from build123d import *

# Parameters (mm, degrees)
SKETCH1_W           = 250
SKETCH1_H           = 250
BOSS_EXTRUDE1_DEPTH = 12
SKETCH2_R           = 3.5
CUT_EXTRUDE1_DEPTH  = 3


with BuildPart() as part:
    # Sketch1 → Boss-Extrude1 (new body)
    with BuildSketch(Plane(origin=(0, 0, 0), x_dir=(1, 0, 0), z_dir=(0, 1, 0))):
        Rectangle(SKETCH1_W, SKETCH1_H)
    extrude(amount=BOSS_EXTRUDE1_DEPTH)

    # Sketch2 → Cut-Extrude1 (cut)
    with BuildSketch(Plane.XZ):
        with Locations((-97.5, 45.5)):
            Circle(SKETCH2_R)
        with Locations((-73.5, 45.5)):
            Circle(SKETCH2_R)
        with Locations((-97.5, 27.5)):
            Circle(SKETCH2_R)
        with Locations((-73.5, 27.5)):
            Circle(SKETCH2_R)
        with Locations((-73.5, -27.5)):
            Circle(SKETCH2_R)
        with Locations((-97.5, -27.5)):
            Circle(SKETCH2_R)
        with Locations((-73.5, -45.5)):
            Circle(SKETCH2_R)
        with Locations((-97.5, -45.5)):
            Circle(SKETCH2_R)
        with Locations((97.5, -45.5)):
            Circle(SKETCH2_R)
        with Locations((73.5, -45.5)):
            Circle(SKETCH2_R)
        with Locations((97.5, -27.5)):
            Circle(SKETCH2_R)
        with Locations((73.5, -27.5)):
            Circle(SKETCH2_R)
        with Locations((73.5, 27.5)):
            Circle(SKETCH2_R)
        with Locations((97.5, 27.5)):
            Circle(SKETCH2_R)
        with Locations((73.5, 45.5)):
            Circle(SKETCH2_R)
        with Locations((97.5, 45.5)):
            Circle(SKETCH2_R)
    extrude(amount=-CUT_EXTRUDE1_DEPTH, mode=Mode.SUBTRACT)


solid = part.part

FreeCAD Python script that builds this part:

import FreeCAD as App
import Part
import Sketcher

V = App.Vector
Q = App.Units.Quantity

doc = App.newDocument("Part")
body = doc.addObject("PartDesign::Body", "Body")

# Sketch on XZ plane
sketch1 = body.newObject("Sketcher::SketchObject", "Sketch")
sketch1.AttachmentSupport = (doc.getObject("XZ_Plane"), [""])
sketch1.MapMode = "FlatFace"
sketch1.addGeometry(Part.LineSegment(V(-125, -125, 0), V(-125, 125, 0)), False)
sketch1.addGeometry(Part.LineSegment(V(-125, 125, 0), V(125, 125, 0)), False)
sketch1.addGeometry(Part.LineSegment(V(125, 125, 0), V(125, -125, 0)), False)
sketch1.addGeometry(Part.LineSegment(V(125, -125, 0), V(-125, -125, 0)), False)
sketch1.addConstraint(Sketcher.Constraint("Coincident", 0, 2, 1, 1))
sketch1.addConstraint(Sketcher.Constraint("Coincident", 1, 2, 2, 1))
sketch1.addConstraint(Sketcher.Constraint("Coincident", 2, 2, 3, 1))
sketch1.addConstraint(Sketcher.Constraint("Coincident", 3, 2, 0, 1))
sketch1.addConstraint(Sketcher.Constraint("Vertical", 0))
sketch1.addConstraint(Sketcher.Constraint("Horizontal", 1))
sketch1.addConstraint(Sketcher.Constraint("Vertical", 2))
sketch1.addConstraint(Sketcher.Constraint("Horizontal", 3))
sketch1.addConstraint(Sketcher.Constraint("Symmetric", 0, 2, 2, 2, -1, 1))
sketch1.addConstraint(Sketcher.Constraint("Equal", 3, 0))
sketch1.addConstraint(Sketcher.Constraint("DistanceX", 1, 1, 1, 2, Q("250 mm")))
pad1 = body.newObject("PartDesign::Pad", "Pad")
pad1.Profile = sketch1
pad1.Length = 12
pad1.Reversed = True

# Sketch on XZ plane
sketch2 = body.newObject("Sketcher::SketchObject", "Sketch001")
sketch2.AttachmentSupport = (doc.getObject("XZ_Plane"), [""])
sketch2.MapMode = "FlatFace"
sketch2.addGeometry(Part.Circle(V(-97.5, 45.5, 0), V(0, 0, 1), 3.5), False)
sketch2.addGeometry(Part.Circle(V(-73.5, 45.5, 0), V(0, 0, 1), 3.5), False)
sketch2.addGeometry(Part.Circle(V(-97.5, 27.5, 0), V(0, 0, 1), 3.5), False)
sketch2.addGeometry(Part.Circle(V(-73.5, 27.5, 0), V(0, 0, 1), 3.5), False)
sketch2.addGeometry(Part.Circle(V(-73.5, -27.5, 0), V(0, 0, 1), 3.5), False)
sketch2.addGeometry(Part.Circle(V(-97.5, -27.5, 0), V(0, 0, 1), 3.5), False)
sketch2.addGeometry(Part.Circle(V(-73.5, -45.5, 0), V(0, 0, 1), 3.5), False)
sketch2.addGeometry(Part.Circle(V(-97.5, -45.5, 0), V(0, 0, 1), 3.5), False)
sketch2.addGeometry(Part.Circle(V(97.5, -45.5, 0), V(0, 0, 1), 3.5), False)
sketch2.addGeometry(Part.Circle(V(73.5, -45.5, 0), V(0, 0, 1), 3.5), False)
sketch2.addGeometry(Part.Circle(V(97.5, -27.5, 0), V(0, 0, 1), 3.5), False)
sketch2.addGeometry(Part.Circle(V(73.5, -27.5, 0), V(0, 0, 1), 3.5), False)
sketch2.addGeometry(Part.Circle(V(73.5, 27.5, 0), V(0, 0, 1), 3.5), False)
sketch2.addGeometry(Part.Circle(V(97.5, 27.5, 0), V(0, 0, 1), 3.5), False)
sketch2.addGeometry(Part.Circle(V(73.5, 45.5, 0), V(0, 0, 1), 3.5), False)
sketch2.addGeometry(Part.Circle(V(97.5, 45.5, 0), V(0, 0, 1), 3.5), False)
sketch2.addConstraint(Sketcher.Constraint("Equal", 0, 1))
sketch2.addConstraint(Sketcher.Constraint("Equal", 1, 2))
sketch2.addConstraint(Sketcher.Constraint("Equal", 2, 3))
sketch2.addConstraint(Sketcher.Constraint("Equal", 3, 4))
sketch2.addConstraint(Sketcher.Constraint("Equal", 4, 5))
sketch2.addConstraint(Sketcher.Constraint("Equal", 5, 6))
sketch2.addConstraint(Sketcher.Constraint("Equal", 6, 7))
sketch2.addConstraint(Sketcher.Constraint("Equal", 7, 8))
sketch2.addConstraint(Sketcher.Constraint("Equal", 8, 9))
sketch2.addConstraint(Sketcher.Constraint("Equal", 9, 10))
sketch2.addConstraint(Sketcher.Constraint("Equal", 10, 11))
sketch2.addConstraint(Sketcher.Constraint("Equal", 11, 12))
sketch2.addConstraint(Sketcher.Constraint("Equal", 12, 13))
sketch2.addConstraint(Sketcher.Constraint("Equal", 13, 14))
sketch2.addConstraint(Sketcher.Constraint("Equal", 14, 15))
sketch2.addConstraint(Sketcher.Constraint("Symmetric", 0, 3, 8, 3, -1, 1))
sketch2.addConstraint(Sketcher.Constraint("Symmetric", 1, 3, 9, 3, -1, 1))
sketch2.addConstraint(Sketcher.Constraint("Symmetric", 2, 3, 10, 3, -1, 1))
sketch2.addConstraint(Sketcher.Constraint("Symmetric", 3, 3, 11, 3, -1, 1))
sketch2.addConstraint(Sketcher.Constraint("Symmetric", 4, 3, 12, 3, -1, 1))
sketch2.addConstraint(Sketcher.Constraint("Symmetric", 5, 3, 13, 3, -1, 1))
sketch2.addConstraint(Sketcher.Constraint("Symmetric", 6, 3, 14, 3, -1, 1))
sketch2.addConstraint(Sketcher.Constraint("Symmetric", 7, 3, 15, 3, -1, 1))
sketch2.addConstraint(Sketcher.Constraint("Symmetric", 7, 3, 8, 3, -2))
sketch2.addConstraint(Sketcher.Constraint("Symmetric", 6, 3, 9, 3, -2))
sketch2.addConstraint(Sketcher.Constraint("Symmetric", 5, 3, 10, 3, -2))
sketch2.addConstraint(Sketcher.Constraint("Symmetric", 4, 3, 11, 3, -2))
sketch2.addConstraint(Sketcher.Constraint("Horizontal", 0, 3, 1, 3))
sketch2.addConstraint(Sketcher.Constraint("Horizontal", 2, 3, 3, 3))
sketch2.addConstraint(Sketcher.Constraint("Vertical", 0, 3, 2, 3))
sketch2.addConstraint(Sketcher.Constraint("Vertical", 1, 3, 3, 3))
sketch2.addConstraint(Sketcher.Constraint("Diameter", 0, Q("7 mm")))
sketch2.addConstraint(Sketcher.Constraint("DistanceX", 0, 3, 1, 3, Q("24 mm")))
sketch2.addConstraint(Sketcher.Constraint("DistanceY", 2, 3, 0, 3, Q("18 mm")))
sketch2.addConstraint(Sketcher.Constraint("DistanceY", 4, 3, 3, 3, Q("55 mm")))
sketch2.addConstraint(Sketcher.Constraint("DistanceX", 6, 3, 8, 3, Q("171 mm")))
pocket1 = body.newObject("PartDesign::Pocket", "Pocket")
pocket1.Profile = sketch2
pocket1.Length = 3

doc.recompute()
